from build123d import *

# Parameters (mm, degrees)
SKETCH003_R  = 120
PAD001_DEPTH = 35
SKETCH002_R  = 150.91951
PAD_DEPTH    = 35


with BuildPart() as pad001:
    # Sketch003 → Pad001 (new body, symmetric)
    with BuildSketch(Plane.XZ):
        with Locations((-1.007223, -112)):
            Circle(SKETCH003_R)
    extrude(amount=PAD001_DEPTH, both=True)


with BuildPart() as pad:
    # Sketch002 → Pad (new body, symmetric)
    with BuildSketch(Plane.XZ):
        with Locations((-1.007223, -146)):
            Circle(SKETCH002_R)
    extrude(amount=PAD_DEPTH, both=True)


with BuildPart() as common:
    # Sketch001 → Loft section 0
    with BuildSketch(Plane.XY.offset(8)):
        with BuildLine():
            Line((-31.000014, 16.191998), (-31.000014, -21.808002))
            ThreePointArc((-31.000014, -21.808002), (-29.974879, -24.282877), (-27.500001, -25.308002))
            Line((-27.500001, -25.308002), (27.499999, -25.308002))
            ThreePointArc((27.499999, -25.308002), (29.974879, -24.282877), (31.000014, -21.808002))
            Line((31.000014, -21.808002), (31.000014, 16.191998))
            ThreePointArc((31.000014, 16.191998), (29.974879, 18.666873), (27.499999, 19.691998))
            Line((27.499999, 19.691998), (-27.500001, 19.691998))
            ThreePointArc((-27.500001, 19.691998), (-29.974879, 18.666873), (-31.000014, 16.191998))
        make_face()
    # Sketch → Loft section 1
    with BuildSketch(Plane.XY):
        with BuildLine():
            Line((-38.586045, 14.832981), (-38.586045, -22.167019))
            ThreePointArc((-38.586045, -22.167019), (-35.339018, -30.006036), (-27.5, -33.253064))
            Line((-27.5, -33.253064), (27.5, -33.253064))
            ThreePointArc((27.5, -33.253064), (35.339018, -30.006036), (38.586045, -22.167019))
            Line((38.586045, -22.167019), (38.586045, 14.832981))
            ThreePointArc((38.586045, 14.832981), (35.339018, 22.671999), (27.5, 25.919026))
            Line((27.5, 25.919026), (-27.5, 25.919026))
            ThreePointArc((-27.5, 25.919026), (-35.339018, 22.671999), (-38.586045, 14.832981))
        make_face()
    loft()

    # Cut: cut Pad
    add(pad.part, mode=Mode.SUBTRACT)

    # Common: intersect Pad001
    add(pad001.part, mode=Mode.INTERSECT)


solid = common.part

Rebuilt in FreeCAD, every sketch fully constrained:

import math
import FreeCAD as App
import Part
import Sketcher
Q = App.Units.Quantity

doc = App.newDocument("Part")
body = doc.addObject("PartDesign::Body", "Body")

# Sketch on XZ plane
sketch1 = body.newObject("Sketcher::SketchObject", "Sketch")
sketch1.AttachmentSupport = (doc.getObject("XZ_Plane"), [""])
sketch1.MapMode = "FlatFace"
sketch1.addGeometry(Part.Circle(App.Vector(-1, -112, 0), App.Vector(0, 0, 1), 120), False)
sketch1.addConstraint(Sketcher.Constraint("Diameter", 0, Q("240 mm")))
sketch1.addConstraint(Sketcher.Constraint("DistanceY", 0, 3, -1, 1, Q("112 mm")))
sketch1.addConstraint(Sketcher.Constraint("DistanceX", 0, 3, -1, 1, Q("1.007223 mm")))
pad1 = body.newObject("PartDesign::Pad", "Pad")
pad1.Profile = sketch1
pad1.Length = 70
pad1.Midplane = True
body2 = doc.addObject("PartDesign::Body", "Body001")

# Sketch on XZ plane
sketch2 = body2.newObject("Sketcher::SketchObject", "Sketch001")
sketch2.AttachmentSupport = (doc.getObject("XZ_Plane001"), [""])
sketch2.MapMode = "FlatFace"
sketch2.addGeometry(Part.Circle(App.Vector(-1, -146, 0), App.Vector(0, 0, 1), 151), False)
sketch2.addConstraint(Sketcher.Constraint("DistanceY", 0, 3, -1, 1, Q("146 mm")))
sketch2.addConstraint(Sketcher.Constraint("Diameter", 0, Q("301.83902 mm")))
sketch2.addConstraint(Sketcher.Constraint("DistanceX", 0, 3, -1, 1, Q("1.007223 mm")))
pad2 = body2.newObject("PartDesign::Pad", "Pad001")
pad2.Profile = sketch2
pad2.Length = 70
pad2.Midplane = True
body3 = doc.addObject("PartDesign::Body", "Body002")

# Sketch on XY plane
sketch3 = body3.newObject("Sketcher::SketchObject", "Sketch002")
sketch3.AttachmentSupport = (doc.getObject("XY_Plane002"), [""])
sketch3.MapMode = "FlatFace"
sketch3.AttachmentOffset = App.Placement(App.Vector(0, 0, 8), App.Rotation())
sketch3.addGeometry(Part.LineSegment(App.Vector(-31, 16.2, 0), App.Vector(-31, -21.8, 0)), False)
sketch3.addGeometry(Part.ArcOfCircle(Part.Circle(App.Vector(-27.5, -21.8, 0), App.Vector(0, 0, 1), 3.5), math.radians(-180), math.radians(-90)), False)
sketch3.addGeometry(Part.LineSegment(App.Vector(-27.5, -25.3, 0), App.Vector(27.5, -25.3, 0)), False)
sketch3.addGeometry(Part.ArcOfCircle(Part.Circle(App.Vector(27.5, -21.8, 0), App.Vector(0, 0, 1), 3.5), math.radians(-90), math.radians(0)), False)
sketch3.addGeometry(Part.LineSegment(App.Vector(31, -21.8, 0), App.Vector(31, 16.2, 0)), False)
sketch3.addGeometry(Part.ArcOfCircle(Part.Circle(App.Vector(27.5, 16.2, 0), App.Vector(0, 0, 1), 3.5), math.radians(0), math.radians(90)), False)
sketch3.addGeometry(Part.LineSegment(App.Vector(27.5, 19.7, 0), App.Vector(-27.5, 19.7, 0)), False)
sketch3.addGeometry(Part.ArcOfCircle(Part.Circle(App.Vector(-27.5, 16.2, 0), App.Vector(0, 0, 1), 3.5), math.radians(90), math.radians(180)), False)
sketch3.addConstraint(Sketcher.Constraint("Coincident", 0, 2, 1, 1))
sketch3.addConstraint(Sketcher.Constraint("Tangent", 1, 2, 2, 1))
sketch3.addConstraint(Sketcher.Constraint("Tangent", 2, 2, 3, 1))
sketch3.addConstraint(Sketcher.Constraint("Coincident", 3, 2, 4, 1))
sketch3.addConstraint(Sketcher.Constraint("Coincident", 4, 2, 5, 1))
sketch3.addConstraint(Sketcher.Constraint("Tangent", 5, 2, 6, 1))
sketch3.addConstraint(Sketcher.Constraint("Tangent", 6, 2, 7, 1))
sketch3.addConstraint(Sketcher.Constraint("Coincident", 7, 2, 0, 1))
sketch3.addConstraint(Sketcher.Constraint("Vertical", 0))
sketch3.addConstraint(Sketcher.Constraint("Horizontal", 2))
sketch3.addConstraint(Sketcher.Constraint("Vertical", 4))
sketch3.addConstraint(Sketcher.Constraint("Horizontal", 6))
sketch3.addConstraint(Sketcher.Constraint("Equal", 1, 3))
sketch3.addConstraint(Sketcher.Constraint("Equal", 3, 5))
sketch3.addConstraint(Sketcher.Constraint("Equal", 5, 7))
sketch3.addConstraint(Sketcher.Constraint("Symmetric", 0, 2, 3, 2, -2))
sketch3.addConstraint(Sketcher.Constraint("Horizontal", 4, 2, 7, 2))
sketch3.addConstraint(Sketcher.Constraint("DistanceX", 2, 1, 2, 2, Q("55 mm")))
sketch3.addConstraint(Sketcher.Constraint("DistanceY", 0, 2, 0, 1, Q("38 mm")))
sketch3.addConstraint(Sketcher.Constraint("DistanceY", 2, 2, 5, 2, Q("45 mm")))
sketch3.addConstraint(Sketcher.Constraint("DistanceY", 1, 2, 0, 2, Q("3.5 mm")))
sketch3.addConstraint(Sketcher.Constraint("DistanceY", 0, 2, -1, 1, Q("21.808002 mm")))
sketch3.addConstraint(Sketcher.Constraint("Radius", 1, Q("3.500013 mm")))

# Sketch on XY plane
sketch4 = body3.newObject("Sketcher::SketchObject", "Sketch003")
sketch4.AttachmentSupport = (doc.getObject("XY_Plane002"), [""])
sketch4.MapMode = "FlatFace"
sketch4.addGeometry(Part.LineSegment(App.Vector(-39, 15, 0), App.Vector(-39, -22, 0)), False)
sketch4.addGeometry(Part.ArcOfCircle(Part.Circle(App.Vector(-27, -22, 0), App.Vector(0, 0, 1), 11), math.radians(-180), math.radians(-90)), False)
sketch4.addGeometry(Part.LineSegment(App.Vector(-28, -33, 0), App.Vector(28, -33, 0)), False)
sketch4.addGeometry(Part.ArcOfCircle(Part.Circle(App.Vector(27, -22, 0), App.Vector(0, 0, 1), 11), math.radians(-90), math.radians(0)), False)
sketch4.addGeometry(Part.LineSegment(App.Vector(39, -22, 0), App.Vector(39, 15, 0)), False)
sketch4.addGeometry(Part.ArcOfCircle(Part.Circle(App.Vector(28, 15, 0), App.Vector(0, 0, 1), 11), math.radians(0), math.radians(90)), False)
sketch4.addGeometry(Part.LineSegment(App.Vector(28, 26, 0), App.Vector(-28, 26, 0)), False)
sketch4.addGeometry(Part.ArcOfCircle(Part.Circle(App.Vector(-28, 15, 0), App.Vector(0, 0, 1), 11), math.radians(90), math.radians(180)), False)
sketch4.addConstraint(Sketcher.Constraint("Tangent", 0, 2, 1, 1))
sketch4.addConstraint(Sketcher.Constraint("Tangent", 1, 2, 2, 1))
sketch4.addConstraint(Sketcher.Constraint("Tangent", 2, 2, 3, 1))
sketch4.addConstraint(Sketcher.Constraint("Tangent", 3, 2, 4, 1))
sketch4.addConstraint(Sketcher.Constraint("Tangent", 4, 2, 5, 1))
sketch4.addConstraint(Sketcher.Constraint("Tangent", 5, 2, 6, 1))
sketch4.addConstraint(Sketcher.Constraint("Tangent", 6, 2, 7, 1))
sketch4.addConstraint(Sketcher.Constraint("Tangent", 7, 2, 0, 1))
sketch4.addConstraint(Sketcher.Constraint("Vertical", 0))
sketch4.addConstraint(Sketcher.Constraint("Horizontal", 2))
sketch4.addConstraint(Sketcher.Constraint("Vertical", 4))
sketch4.addConstraint(Sketcher.Constraint("Horizontal", 6))
sketch4.addConstraint(Sketcher.Constraint("Equal", 1, 3))
sketch4.addConstraint(Sketcher.Constraint("Equal", 3, 5))
sketch4.addConstraint(Sketcher.Constraint("Equal", 5, 7))
sketch4.addConstraint(Sketcher.Constraint("DistanceX", 2, 1, 2, 2, Q("55 mm")))
sketch4.addConstraint(Sketcher.Constraint("DistanceY", 0, 2, 0, 1, Q("37 mm")))
sketch4.addConstraint(Sketcher.Constraint("DistanceX", 1, 3, -1, 1, Q("27.5 mm")))
sketch4.addConstraint(Sketcher.Constraint("Radius", 1, Q("11.086045 mm")))
sketch4.addConstraint(Sketcher.Constraint("DistanceY", 1, 3, -1, 1, Q("22.167019 mm")))

additiveloft = body3.newObject("PartDesign::AdditiveLoft", "AdditiveLoft")
additiveloft.Profile = sketch3
additiveloft.Sections = [sketch4]
doc.recompute()

boolean = body3.newObject("PartDesign::Boolean", "Boolean")
boolean.Type = "Cut"
boolean.addObjects([body2])
doc.recompute()

boolean2 = body3.newObject("PartDesign::Boolean", "Boolean001")
boolean2.Type = "Common"
boolean2.addObjects([body])

doc.recompute()
